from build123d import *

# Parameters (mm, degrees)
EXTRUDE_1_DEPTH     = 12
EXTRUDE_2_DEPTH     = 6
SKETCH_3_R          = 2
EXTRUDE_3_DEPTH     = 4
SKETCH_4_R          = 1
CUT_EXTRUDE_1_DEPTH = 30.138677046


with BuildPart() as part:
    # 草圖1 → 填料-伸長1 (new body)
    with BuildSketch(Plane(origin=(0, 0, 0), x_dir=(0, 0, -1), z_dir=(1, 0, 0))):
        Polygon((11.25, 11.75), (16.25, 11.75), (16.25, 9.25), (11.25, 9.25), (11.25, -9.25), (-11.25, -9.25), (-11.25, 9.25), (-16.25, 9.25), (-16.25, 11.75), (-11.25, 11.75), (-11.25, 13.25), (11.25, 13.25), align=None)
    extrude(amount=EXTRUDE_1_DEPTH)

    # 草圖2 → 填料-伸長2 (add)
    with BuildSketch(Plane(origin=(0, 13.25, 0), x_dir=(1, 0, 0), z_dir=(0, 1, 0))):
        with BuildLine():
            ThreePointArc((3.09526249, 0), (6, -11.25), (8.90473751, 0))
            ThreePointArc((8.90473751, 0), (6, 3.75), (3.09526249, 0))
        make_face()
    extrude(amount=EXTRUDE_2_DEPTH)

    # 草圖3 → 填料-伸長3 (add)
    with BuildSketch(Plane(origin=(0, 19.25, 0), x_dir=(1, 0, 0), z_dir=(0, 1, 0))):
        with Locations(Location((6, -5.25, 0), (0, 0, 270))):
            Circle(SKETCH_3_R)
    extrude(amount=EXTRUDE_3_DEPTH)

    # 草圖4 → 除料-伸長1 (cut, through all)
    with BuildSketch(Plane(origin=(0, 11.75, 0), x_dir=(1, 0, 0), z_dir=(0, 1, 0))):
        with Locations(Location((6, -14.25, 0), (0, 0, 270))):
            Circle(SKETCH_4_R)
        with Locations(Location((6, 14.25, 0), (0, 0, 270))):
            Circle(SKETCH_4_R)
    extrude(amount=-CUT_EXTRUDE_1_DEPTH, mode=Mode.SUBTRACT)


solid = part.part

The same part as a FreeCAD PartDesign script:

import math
import FreeCAD as App
import Part
import Sketcher

doc = App.newDocument("Part")
params = doc.addObject("Spreadsheet::Sheet", "Params")
for row, (alias, value) in enumerate([
    ("sketch1_height", "5 mm"),
    ("sketch1_width", "1.5 mm"),
    ("sketch1_width2", "2.5 mm"),
    ("sketch1_width3", "18.5 mm"),
    ("sketch1_height2", "22.5 mm"),
    ("pad1_length", "12 mm"),
    ("sketch2_radius", "6 mm"),
    ("sketch2_radius2", "3 mm"),
    ("pad2_length", "6 mm"),
    ("sketch3_diameter", "4 mm"),
    ("pad3_length", "4 mm"),
    ("sketch4_diameter", "2 mm"),
], start=1):
    params.set(f"A{row}", alias)
    params.set(f"B{row}", "=" + value)
    params.setAlias(f"B{row}", alias)

body = doc.addObject("PartDesign::Body", "Body")

# Sketch on YZ plane
sketch1 = body.newObject("Sketcher::SketchObject", "Sketch")
sketch1.AttachmentSupport = (doc.getObject("YZ_Plane"), [""])
sketch1.MapMode = "FlatFace"
sketch1.addGeometry([
    Part.LineSegment(App.Vector(11.8, -16.2, 0), App.Vector(11.8, -11.2, 0)),  # 0
    Part.LineSegment(App.Vector(11.8, -11.2, 0), App.Vector(13.2, -11.2, 0)),  # 1
    Part.LineSegment(App.Vector(13.2, -11.2, 0), App.Vector(13.2, 11.2, 0)),  # 2
    Part.LineSegment(App.Vector(13.2, 11.2, 0), App.Vector(11.8, 11.2, 0)),  # 3
    Part.LineSegment(App.Vector(11.8, 11.2, 0), App.Vector(11.8, 16.2, 0)),  # 4
    Part.LineSegment(App.Vector(11.8, 16.2, 0), App.Vector(9.2, 16.2, 0)),  # 5
    Part.LineSegment(App.Vector(9.2, 16.2, 0), App.Vector(9.2, 11.2, 0)),  # 6
    Part.LineSegment(App.Vector(9.2, 11.2, 0), App.Vector(-9.2, 11.2, 0)),  # 7
    Part.LineSegment(App.Vector(-9.2, 11.2, 0), App.Vector(-9.2, -11.2, 0)),  # 8
    Part.LineSegment(App.Vector(-9.2, -11.2, 0), App.Vector(9.2, -11.2, 0)),  # 9
    Part.LineSegment(App.Vector(9.2, -11.2, 0), App.Vector(9.2, -16.2, 0)),  # 10
    Part.LineSegment(App.Vector(9.2, -16.2, 0), App.Vector(11.8, -16.2, 0)),  # 11
], False)
sketch1.addConstraint([
    Sketcher.Constraint("Coincident", 0, 2, 1, 1),
    Sketcher.Constraint("Coincident", 1, 2, 2, 1),
    Sketcher.Constraint("Coincident", 2, 2, 3, 1),
    Sketcher.Constraint("Coincident", 3, 2, 4, 1),
    Sketcher.Constraint("Coincident", 4, 2, 5, 1),
    Sketcher.Constraint("Coincident", 5, 2, 6, 1),
    Sketcher.Constraint("Coincident", 6, 2, 7, 1),
    Sketcher.Constraint("Coincident", 7, 2, 8, 1),
    Sketcher.Constraint("Coincident", 8, 2, 9, 1),
    Sketcher.Constraint("Coincident", 9, 2, 10, 1),
    Sketcher.Constraint("Coincident", 10, 2, 11, 1),
    Sketcher.Constraint("Coincident", 11, 2, 0, 1),
    Sketcher.Constraint("Vertical", 0),
    Sketcher.Constraint("Horizontal", 1),
    Sketcher.Constraint("Vertical", 2),
    Sketcher.Constraint("Horizontal", 3),
    Sketcher.Constraint("Vertical", 4),
    Sketcher.Constraint("Horizontal", 5),
    Sketcher.Constraint("Vertical", 6),
    Sketcher.Constraint("Horizontal", 7),
    Sketcher.Constraint("Vertical", 8),
    Sketcher.Constraint("Horizontal", 9),
    Sketcher.Constraint("Vertical", 10),
    Sketcher.Constraint("Horizontal", 11),
    Sketcher.Constraint("Symmetric", 6, 2, 8, 2, -1, 1),
    Sketcher.Constraint("Symmetric", 0, 2, 3, 2, -1),
    Sketcher.Constraint("Symmetric", 5, 2, 10, 2, -1),
    Sketcher.Constraint("Horizontal", 3, 2, 6, 2),
    Sketcher.Constraint("DistanceY", 0, 1, 0, 2, 5.0),
    Sketcher.Constraint("DistanceX", 1, 1, 1, 2, 1.5),
    Sketcher.Constraint("DistanceX", 5, 2, 5, 1, 2.5),
    Sketcher.Constraint("DistanceX", 7, 2, 7, 1, 18.5),
    Sketcher.Constraint("DistanceY", 2, 1, 2, 2, 22.5),
])
sketch1.setExpression("Constraints[28]", "Params.sketch1_height")
sketch1.setExpression("Constraints[29]", "Params.sketch1_width")
sketch1.setExpression("Constraints[30]", "Params.sketch1_width2")
sketch1.setExpression("Constraints[31]", "Params.sketch1_width3")
sketch1.setExpression("Constraints[32]", "Params.sketch1_height2")
pad1 = body.newObject("PartDesign::Pad", "Pad")
pad1.Profile = sketch1
pad1.setExpression("Length", "Params.pad1_length")

# Sketch on XZ plane
sketch2 = body.newObject("Sketcher::SketchObject", "Sketch001")
sketch2.AttachmentSupport = (doc.getObject("XZ_Plane"), [""])
sketch2.MapMode = "FlatFace"
sketch2.AttachmentOffset = App.Placement(App.Vector(0, 0, -13.25), App.Rotation())
sketch2.addGeometry([
    Part.ArcOfCircle(Part.Circle(App.Vector(6, 5.2, 0), App.Vector(0, 0, 1), 6), math.radians(-61), math.radians(241)),
    Part.ArcOfCircle(Part.Circle(App.Vector(6, -0.8, 0), App.Vector(0, 0, 1), 3), math.radians(166), math.radians(374)),
], False)
sketch2.addConstraint([
    Sketcher.Constraint("Coincident", 0, 1, 1, 2),
    Sketcher.Constraint("Coincident", 1, 1, 0, 2),
    Sketcher.Constraint("PointOnObject", 0, 1, -1),
    Sketcher.Constraint("PointOnObject", 1, 1, -1),
    Sketcher.Constraint("Radius", 0, 6.0),
    Sketcher.Constraint("Radius", 1, 3.0),
    Sketcher.Constraint("DistanceX", -1, 1, 0, 3, 6.0),
    Sketcher.Constraint("DistanceY", 1, 3, 0, 3, 6.0),
])
sketch2.setExpression("Constraints[4]", "Params.sketch2_radius")
sketch2.setExpression("Constraints[5]", "Params.sketch2_radius2")
pad2 = body.newObject("PartDesign::Pad", "Pad001")
pad2.Profile = sketch2
pad2.setExpression("Length", "Params.pad2_length")
pad2.Reversed = True

# Sketch on XZ plane
sketch3 = body.newObject("Sketcher::SketchObject", "Sketch002")
sketch3.AttachmentSupport = (doc.getObject("XZ_Plane"), [""])
sketch3.MapMode = "FlatFace"
sketch3.AttachmentOffset = App.Placement(App.Vector(0, 0, -19.25), App.Rotation())
sketch3.addGeometry(Part.Circle(App.Vector(6, 5.2, 0), App.Vector(0, 0, 1), 2), False)
sketch3.addConstraint([
    Sketcher.Constraint("Diameter", 0, 4.0),
    Sketcher.Constraint("DistanceX", -1, 1, 0, 3, 6.0),
    Sketcher.Constraint("DistanceY", -1, 1, 0, 3, 5.25),
])
sketch3.setExpression("Constraints[0]", "Params.sketch3_diameter")
pad3 = body.newObject("PartDesign::Pad", "Pad002")
pad3.Profile = sketch3
pad3.setExpression("Length", "Params.pad3_length")
pad3.Reversed = True

# Sketch on XZ plane
sketch4 = body.newObject("Sketcher::SketchObject", "Sketch003")
sketch4.AttachmentSupport = (doc.getObject("XZ_Plane"), [""])
sketch4.MapMode = "FlatFace"
sketch4.AttachmentOffset = App.Placement(App.Vector(0, 0, -11.75), App.Rotation())
sketch4.addGeometry([
    Part.Circle(App.Vector(6, 14.2, 0), App.Vector(0, 0, 1), 1),
    Part.Circle(App.Vector(6, -14.2, 0), App.Vector(0, 0, 1), 1),
], False)
sketch4.addConstraint([
    Sketcher.Constraint("Equal", 0, 1),
    Sketcher.Constraint("Symmetric", 0, 3, 1, 3, -1),
    Sketcher.Constraint("Diameter", 0, 2.0),
    Sketcher.Constraint("DistanceX", -1, 1, 0, 3, 6.0),
    Sketcher.Constraint("DistanceY", 1, 3, 0, 3, 28.5),
])
sketch4.setExpression("Constraints[2]", "Params.sketch4_diameter")
pocket1 = body.newObject("PartDesign::Pocket", "Pocket")
pocket1.Profile = sketch4
pocket1.Type = "ThroughAll"
pocket1.Reversed = True

doc.recompute()
